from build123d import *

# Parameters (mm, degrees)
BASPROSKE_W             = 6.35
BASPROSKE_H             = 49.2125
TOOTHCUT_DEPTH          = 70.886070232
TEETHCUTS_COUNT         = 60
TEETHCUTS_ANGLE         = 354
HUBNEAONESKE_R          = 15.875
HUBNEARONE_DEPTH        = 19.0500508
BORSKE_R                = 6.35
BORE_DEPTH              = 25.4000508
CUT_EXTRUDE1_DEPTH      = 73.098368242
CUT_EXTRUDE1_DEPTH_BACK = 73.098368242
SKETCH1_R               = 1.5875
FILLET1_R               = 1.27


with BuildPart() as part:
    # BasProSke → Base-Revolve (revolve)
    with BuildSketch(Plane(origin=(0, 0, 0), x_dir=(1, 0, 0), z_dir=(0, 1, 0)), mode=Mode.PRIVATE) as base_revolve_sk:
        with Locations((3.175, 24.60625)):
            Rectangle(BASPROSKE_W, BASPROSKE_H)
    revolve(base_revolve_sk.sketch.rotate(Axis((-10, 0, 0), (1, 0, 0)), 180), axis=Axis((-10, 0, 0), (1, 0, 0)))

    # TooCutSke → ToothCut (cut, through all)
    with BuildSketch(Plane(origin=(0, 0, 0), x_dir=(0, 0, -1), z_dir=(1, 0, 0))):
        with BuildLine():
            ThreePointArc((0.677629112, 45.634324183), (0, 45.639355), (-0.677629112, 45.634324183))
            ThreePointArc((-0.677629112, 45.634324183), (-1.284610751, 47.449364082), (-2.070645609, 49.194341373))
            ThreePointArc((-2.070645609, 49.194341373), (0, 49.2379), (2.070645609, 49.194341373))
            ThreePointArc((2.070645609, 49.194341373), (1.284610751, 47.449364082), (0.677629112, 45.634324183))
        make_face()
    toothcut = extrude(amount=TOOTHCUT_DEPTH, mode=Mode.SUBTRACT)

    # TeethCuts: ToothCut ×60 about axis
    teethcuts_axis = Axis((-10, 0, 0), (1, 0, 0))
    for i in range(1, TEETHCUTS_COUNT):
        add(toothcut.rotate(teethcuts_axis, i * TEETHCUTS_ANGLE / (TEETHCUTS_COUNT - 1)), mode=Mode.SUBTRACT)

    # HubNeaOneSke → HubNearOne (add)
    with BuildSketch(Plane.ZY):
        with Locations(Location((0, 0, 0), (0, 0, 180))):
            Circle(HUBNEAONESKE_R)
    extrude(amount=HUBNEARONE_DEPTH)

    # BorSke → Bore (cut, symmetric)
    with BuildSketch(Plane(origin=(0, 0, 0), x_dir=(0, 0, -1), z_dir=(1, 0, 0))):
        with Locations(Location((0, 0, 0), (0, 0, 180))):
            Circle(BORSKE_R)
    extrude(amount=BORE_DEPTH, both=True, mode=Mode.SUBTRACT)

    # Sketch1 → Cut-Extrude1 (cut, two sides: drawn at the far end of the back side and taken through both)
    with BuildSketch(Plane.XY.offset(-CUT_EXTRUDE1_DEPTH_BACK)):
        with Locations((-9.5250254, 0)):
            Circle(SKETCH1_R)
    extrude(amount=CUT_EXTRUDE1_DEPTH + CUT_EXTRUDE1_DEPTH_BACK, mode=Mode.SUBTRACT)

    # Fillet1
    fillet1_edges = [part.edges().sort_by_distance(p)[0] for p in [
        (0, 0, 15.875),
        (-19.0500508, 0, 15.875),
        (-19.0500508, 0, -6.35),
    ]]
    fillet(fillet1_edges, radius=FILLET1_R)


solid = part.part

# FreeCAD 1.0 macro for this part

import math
import FreeCAD as App
import Part
import Sketcher
from FreeCAD import Vector
Q = App.Units.Quantity


def edges_at(feature, points):
    """Names of the edges that pass closest to the given points."""
    edges = feature.Shape.Edges
    near = lambda p: min(range(len(edges)), key=lambda i: edges[i].distToShape(Part.Vertex(*p))[0])
    return sorted({f"Edge{near(p) + 1}" for p in points})

doc = App.newDocument("Part")
params = doc.addObject("Spreadsheet::Sheet", "Params")
for row, (alias, value) in enumerate([
    ("sketch1_width", "0.25 in"),
    ("sketch1_height", "1.9375 in"),
    ("revolution_angle", "360 deg"),
    ("sketch2_radius", "0.75 in"),
    ("sketch3_diameter", "1.25 in"),
    ("pad1_length", "19.050051 mm"),
    ("sketch4_diameter", "0.5 in"),
    ("pocket2_length", "50.800102 mm"),
    ("sketch5_diameter", "0.125 in"),
    ("fillet_radius", "0.05 in"),
], start=1):
    params.set(f"A{row}", alias)
    params.set(f"B{row}", "=" + value)
    params.setAlias(f"B{row}", alias)

body = doc.addObject("PartDesign::Body", "Body")

sketch1 = body.newObject("Sketcher::SketchObject", "Sketch")
sketch1.AttachmentSupport = (doc.getObject("XZ_Plane"), [""])
sketch1.MapMode = "FlatFace"
sketch1.addGeometry([
    Part.LineSegment(Vector(0, -49.2125, 0), Vector(0, 0, 0)),
    Part.LineSegment(Vector(0, 0, 0), Vector(6.35, 0, 0)),
    Part.LineSegment(Vector(6.35, 0, 0), Vector(6.35, -49.2125, 0)),
    Part.LineSegment(Vector(6.35, -49.2125, 0), Vector(0, -49.2125, 0)),
], False)
sketch1.addConstraint([
    Sketcher.Constraint("Coincident", 0, 2, 1, 1),
    Sketcher.Constraint("Coincident", 1, 2, 2, 1),
    Sketcher.Constraint("Coincident", 2, 2, 3, 1),
    Sketcher.Constraint("Coincident", 3, 2, 0, 1),
    Sketcher.Constraint("Vertical", 0),
    Sketcher.Constraint("Horizontal", 1),
    Sketcher.Constraint("Vertical", 2),
    Sketcher.Constraint("Horizontal", 3),
    Sketcher.Constraint("Coincident", 0, 2, -1, 1),
    Sketcher.Constraint("DistanceX", 1, 1, 1, 2, Q("0.25 in")),
    Sketcher.Constraint("DistanceY", 0, 1, 0, 2, Q("1.9375 in")),
])
sketch1.setExpression("Constraints[9]", "Params.sketch1_width")
sketch1.setExpression("Constraints[10]", "Params.sketch1_height")
revolution = body.newObject("PartDesign::Revolution", "Revolution")
revolution.Profile = sketch1
revolution.ReferenceAxis = (sketch1, ["H_Axis"])
revolution.setExpression("Angle", "Params.revolution_angle")

sketch2 = body.newObject("Sketcher::SketchObject", "Sketch001")
sketch2.AttachmentSupport = (doc.getObject("YZ_Plane"), [""])
sketch2.MapMode = "FlatFace"
sketch2.addGeometry([
    Part.ArcOfCircle(Part.Circle(Vector(-0.000004, 0, 0), Vector(0, 0, 1), 45.639359), math.radians(-0.850729), math.radians(0.850729)),
    Part.ArcOfCircle(Part.Circle(Vector(40.507702, -19.024843, 0), Vector(0, 0, 1), 19.05), math.radians(62.871249), math.radians(74.388448)),
    Part.ArcOfCircle(Part.Circle(Vector(0.000001, 0, 0), Vector(0, 0, 1), 49.237899), math.radians(-2.410222), math.radians(2.410222)),
    Part.ArcOfCircle(Part.Circle(Vector(40.507702, 19.024843, 0), Vector(0, 0, 1), 19.05), math.radians(-74.388448), math.radians(-62.871249)),
], False)
sketch2.addConstraint([
    Sketcher.Constraint("Coincident", 0, 1, 1, 2),
    Sketcher.Constraint("Coincident", 1, 1, 2, 1),
    Sketcher.Constraint("Coincident", 2, 2, 3, 2),
    Sketcher.Constraint("Coincident", 3, 1, 0, 2),
    Sketcher.Constraint("Coincident", 0, 3, -1, 1),
    Sketcher.Constraint("Coincident", 2, 3, -1, 1),
    Sketcher.Constraint("Equal", 1, 3),
    Sketcher.Constraint("Symmetric", 1, 3, 3, 3, -1),
    Sketcher.Constraint("Radius", 1, Q("0.75 in")),
    Sketcher.Constraint("Radius", 2, Q("1.9385 in")),
    Sketcher.Constraint("Radius", 0, 45.639359),
    Sketcher.Constraint("DistanceX", 2, 3, 1, 3, 40.507702),
    Sketcher.Constraint("DistanceY", 0, 1, -1, 1, 0.677629),
])
sketch2.setExpression("Constraints[8]", "Params.sketch2_radius")
pocket1 = body.newObject("PartDesign::Pocket", "Pocket")
pocket1.Profile = sketch2
pocket1.Type = "ThroughAll"
pocket1.Reversed = True
doc.recompute()

polarpattern = body.newObject("PartDesign::PolarPattern", "PolarPattern")
polarpattern.Originals = [pocket1]
polarpattern.Axis = (doc.getObject("X_Axis"), [""])
polarpattern.Angle = 360
polarpattern.Occurrences = 60
body.Tip = polarpattern

sketch3 = body.newObject("Sketcher::SketchObject", "Sketch002")
sketch3.AttachmentSupport = (doc.getObject("YZ_Plane"), [""])
sketch3.MapMode = "FlatFace"
sketch3.addGeometry(Part.Circle(Vector(0, 0, 0), Vector(0, 0, 1), 15.875), False)
sketch3.addConstraint([
    Sketcher.Constraint("Coincident", 0, 3, -1, 1),
    Sketcher.Constraint("Diameter", 0, Q("1.25 in")),
])
sketch3.setExpression("Constraints[1]", "Params.sketch3_diameter")
pad1 = body.newObject("PartDesign::Pad", "Pad")
pad1.Profile = sketch3
pad1.setExpression("Length", "Params.pad1_length")
pad1.Reversed = True

sketch4 = body.newObject("Sketcher::SketchObject", "Sketch003")
sketch4.AttachmentSupport = (doc.getObject("YZ_Plane"), [""])
sketch4.MapMode = "FlatFace"
sketch4.addGeometry(Part.Circle(Vector(0, 0, 0), Vector(0, 0, 1), 6.35), False)
sketch4.addConstraint([
    Sketcher.Constraint("Coincident", 0, 3, -1, 1),
    Sketcher.Constraint("Diameter", 0, Q("0.5 in")),
])
sketch4.setExpression("Constraints[1]", "Params.sketch4_diameter")
pocket2 = body.newObject("PartDesign::Pocket", "Pocket001")
pocket2.Profile = sketch4
pocket2.setExpression("Length", "Params.pocket2_length")
pocket2.Midplane = True

sketch5 = body.newObject("Sketcher::SketchObject", "Sketch004")
sketch5.AttachmentSupport = (doc.getObject("XY_Plane"), [""])
sketch5.MapMode = "FlatFace"
sketch5.addGeometry(Part.Circle(Vector(-9.525025, 0, 0), Vector(0, 0, 1), 1.5875), False)
sketch5.addConstraint([
    Sketcher.Constraint("PointOnObject", 0, 3, -1),
    Sketcher.Constraint("Diameter", 0, Q("0.125 in")),
    Sketcher.Constraint("DistanceX", 0, 3, -1, 1, 9.525025),
])
sketch5.setExpression("Constraints[1]", "Params.sketch5_diameter")
pocket3 = body.newObject("PartDesign::Pocket", "Pocket002")
pocket3.Profile = sketch5
pocket3.Type = "ThroughAll"
pocket3.Midplane = True
doc.recompute()

fillet = body.newObject("PartDesign::Fillet", "Fillet")
fillet.Base = (pocket3, edges_at(pocket3, [(0, 0, 15.875), (-19.05, 0, 15.875), (-19.05, 0, -6.35)]))
fillet.setExpression("Radius", "Params.fillet_radius")

doc.recompute()
